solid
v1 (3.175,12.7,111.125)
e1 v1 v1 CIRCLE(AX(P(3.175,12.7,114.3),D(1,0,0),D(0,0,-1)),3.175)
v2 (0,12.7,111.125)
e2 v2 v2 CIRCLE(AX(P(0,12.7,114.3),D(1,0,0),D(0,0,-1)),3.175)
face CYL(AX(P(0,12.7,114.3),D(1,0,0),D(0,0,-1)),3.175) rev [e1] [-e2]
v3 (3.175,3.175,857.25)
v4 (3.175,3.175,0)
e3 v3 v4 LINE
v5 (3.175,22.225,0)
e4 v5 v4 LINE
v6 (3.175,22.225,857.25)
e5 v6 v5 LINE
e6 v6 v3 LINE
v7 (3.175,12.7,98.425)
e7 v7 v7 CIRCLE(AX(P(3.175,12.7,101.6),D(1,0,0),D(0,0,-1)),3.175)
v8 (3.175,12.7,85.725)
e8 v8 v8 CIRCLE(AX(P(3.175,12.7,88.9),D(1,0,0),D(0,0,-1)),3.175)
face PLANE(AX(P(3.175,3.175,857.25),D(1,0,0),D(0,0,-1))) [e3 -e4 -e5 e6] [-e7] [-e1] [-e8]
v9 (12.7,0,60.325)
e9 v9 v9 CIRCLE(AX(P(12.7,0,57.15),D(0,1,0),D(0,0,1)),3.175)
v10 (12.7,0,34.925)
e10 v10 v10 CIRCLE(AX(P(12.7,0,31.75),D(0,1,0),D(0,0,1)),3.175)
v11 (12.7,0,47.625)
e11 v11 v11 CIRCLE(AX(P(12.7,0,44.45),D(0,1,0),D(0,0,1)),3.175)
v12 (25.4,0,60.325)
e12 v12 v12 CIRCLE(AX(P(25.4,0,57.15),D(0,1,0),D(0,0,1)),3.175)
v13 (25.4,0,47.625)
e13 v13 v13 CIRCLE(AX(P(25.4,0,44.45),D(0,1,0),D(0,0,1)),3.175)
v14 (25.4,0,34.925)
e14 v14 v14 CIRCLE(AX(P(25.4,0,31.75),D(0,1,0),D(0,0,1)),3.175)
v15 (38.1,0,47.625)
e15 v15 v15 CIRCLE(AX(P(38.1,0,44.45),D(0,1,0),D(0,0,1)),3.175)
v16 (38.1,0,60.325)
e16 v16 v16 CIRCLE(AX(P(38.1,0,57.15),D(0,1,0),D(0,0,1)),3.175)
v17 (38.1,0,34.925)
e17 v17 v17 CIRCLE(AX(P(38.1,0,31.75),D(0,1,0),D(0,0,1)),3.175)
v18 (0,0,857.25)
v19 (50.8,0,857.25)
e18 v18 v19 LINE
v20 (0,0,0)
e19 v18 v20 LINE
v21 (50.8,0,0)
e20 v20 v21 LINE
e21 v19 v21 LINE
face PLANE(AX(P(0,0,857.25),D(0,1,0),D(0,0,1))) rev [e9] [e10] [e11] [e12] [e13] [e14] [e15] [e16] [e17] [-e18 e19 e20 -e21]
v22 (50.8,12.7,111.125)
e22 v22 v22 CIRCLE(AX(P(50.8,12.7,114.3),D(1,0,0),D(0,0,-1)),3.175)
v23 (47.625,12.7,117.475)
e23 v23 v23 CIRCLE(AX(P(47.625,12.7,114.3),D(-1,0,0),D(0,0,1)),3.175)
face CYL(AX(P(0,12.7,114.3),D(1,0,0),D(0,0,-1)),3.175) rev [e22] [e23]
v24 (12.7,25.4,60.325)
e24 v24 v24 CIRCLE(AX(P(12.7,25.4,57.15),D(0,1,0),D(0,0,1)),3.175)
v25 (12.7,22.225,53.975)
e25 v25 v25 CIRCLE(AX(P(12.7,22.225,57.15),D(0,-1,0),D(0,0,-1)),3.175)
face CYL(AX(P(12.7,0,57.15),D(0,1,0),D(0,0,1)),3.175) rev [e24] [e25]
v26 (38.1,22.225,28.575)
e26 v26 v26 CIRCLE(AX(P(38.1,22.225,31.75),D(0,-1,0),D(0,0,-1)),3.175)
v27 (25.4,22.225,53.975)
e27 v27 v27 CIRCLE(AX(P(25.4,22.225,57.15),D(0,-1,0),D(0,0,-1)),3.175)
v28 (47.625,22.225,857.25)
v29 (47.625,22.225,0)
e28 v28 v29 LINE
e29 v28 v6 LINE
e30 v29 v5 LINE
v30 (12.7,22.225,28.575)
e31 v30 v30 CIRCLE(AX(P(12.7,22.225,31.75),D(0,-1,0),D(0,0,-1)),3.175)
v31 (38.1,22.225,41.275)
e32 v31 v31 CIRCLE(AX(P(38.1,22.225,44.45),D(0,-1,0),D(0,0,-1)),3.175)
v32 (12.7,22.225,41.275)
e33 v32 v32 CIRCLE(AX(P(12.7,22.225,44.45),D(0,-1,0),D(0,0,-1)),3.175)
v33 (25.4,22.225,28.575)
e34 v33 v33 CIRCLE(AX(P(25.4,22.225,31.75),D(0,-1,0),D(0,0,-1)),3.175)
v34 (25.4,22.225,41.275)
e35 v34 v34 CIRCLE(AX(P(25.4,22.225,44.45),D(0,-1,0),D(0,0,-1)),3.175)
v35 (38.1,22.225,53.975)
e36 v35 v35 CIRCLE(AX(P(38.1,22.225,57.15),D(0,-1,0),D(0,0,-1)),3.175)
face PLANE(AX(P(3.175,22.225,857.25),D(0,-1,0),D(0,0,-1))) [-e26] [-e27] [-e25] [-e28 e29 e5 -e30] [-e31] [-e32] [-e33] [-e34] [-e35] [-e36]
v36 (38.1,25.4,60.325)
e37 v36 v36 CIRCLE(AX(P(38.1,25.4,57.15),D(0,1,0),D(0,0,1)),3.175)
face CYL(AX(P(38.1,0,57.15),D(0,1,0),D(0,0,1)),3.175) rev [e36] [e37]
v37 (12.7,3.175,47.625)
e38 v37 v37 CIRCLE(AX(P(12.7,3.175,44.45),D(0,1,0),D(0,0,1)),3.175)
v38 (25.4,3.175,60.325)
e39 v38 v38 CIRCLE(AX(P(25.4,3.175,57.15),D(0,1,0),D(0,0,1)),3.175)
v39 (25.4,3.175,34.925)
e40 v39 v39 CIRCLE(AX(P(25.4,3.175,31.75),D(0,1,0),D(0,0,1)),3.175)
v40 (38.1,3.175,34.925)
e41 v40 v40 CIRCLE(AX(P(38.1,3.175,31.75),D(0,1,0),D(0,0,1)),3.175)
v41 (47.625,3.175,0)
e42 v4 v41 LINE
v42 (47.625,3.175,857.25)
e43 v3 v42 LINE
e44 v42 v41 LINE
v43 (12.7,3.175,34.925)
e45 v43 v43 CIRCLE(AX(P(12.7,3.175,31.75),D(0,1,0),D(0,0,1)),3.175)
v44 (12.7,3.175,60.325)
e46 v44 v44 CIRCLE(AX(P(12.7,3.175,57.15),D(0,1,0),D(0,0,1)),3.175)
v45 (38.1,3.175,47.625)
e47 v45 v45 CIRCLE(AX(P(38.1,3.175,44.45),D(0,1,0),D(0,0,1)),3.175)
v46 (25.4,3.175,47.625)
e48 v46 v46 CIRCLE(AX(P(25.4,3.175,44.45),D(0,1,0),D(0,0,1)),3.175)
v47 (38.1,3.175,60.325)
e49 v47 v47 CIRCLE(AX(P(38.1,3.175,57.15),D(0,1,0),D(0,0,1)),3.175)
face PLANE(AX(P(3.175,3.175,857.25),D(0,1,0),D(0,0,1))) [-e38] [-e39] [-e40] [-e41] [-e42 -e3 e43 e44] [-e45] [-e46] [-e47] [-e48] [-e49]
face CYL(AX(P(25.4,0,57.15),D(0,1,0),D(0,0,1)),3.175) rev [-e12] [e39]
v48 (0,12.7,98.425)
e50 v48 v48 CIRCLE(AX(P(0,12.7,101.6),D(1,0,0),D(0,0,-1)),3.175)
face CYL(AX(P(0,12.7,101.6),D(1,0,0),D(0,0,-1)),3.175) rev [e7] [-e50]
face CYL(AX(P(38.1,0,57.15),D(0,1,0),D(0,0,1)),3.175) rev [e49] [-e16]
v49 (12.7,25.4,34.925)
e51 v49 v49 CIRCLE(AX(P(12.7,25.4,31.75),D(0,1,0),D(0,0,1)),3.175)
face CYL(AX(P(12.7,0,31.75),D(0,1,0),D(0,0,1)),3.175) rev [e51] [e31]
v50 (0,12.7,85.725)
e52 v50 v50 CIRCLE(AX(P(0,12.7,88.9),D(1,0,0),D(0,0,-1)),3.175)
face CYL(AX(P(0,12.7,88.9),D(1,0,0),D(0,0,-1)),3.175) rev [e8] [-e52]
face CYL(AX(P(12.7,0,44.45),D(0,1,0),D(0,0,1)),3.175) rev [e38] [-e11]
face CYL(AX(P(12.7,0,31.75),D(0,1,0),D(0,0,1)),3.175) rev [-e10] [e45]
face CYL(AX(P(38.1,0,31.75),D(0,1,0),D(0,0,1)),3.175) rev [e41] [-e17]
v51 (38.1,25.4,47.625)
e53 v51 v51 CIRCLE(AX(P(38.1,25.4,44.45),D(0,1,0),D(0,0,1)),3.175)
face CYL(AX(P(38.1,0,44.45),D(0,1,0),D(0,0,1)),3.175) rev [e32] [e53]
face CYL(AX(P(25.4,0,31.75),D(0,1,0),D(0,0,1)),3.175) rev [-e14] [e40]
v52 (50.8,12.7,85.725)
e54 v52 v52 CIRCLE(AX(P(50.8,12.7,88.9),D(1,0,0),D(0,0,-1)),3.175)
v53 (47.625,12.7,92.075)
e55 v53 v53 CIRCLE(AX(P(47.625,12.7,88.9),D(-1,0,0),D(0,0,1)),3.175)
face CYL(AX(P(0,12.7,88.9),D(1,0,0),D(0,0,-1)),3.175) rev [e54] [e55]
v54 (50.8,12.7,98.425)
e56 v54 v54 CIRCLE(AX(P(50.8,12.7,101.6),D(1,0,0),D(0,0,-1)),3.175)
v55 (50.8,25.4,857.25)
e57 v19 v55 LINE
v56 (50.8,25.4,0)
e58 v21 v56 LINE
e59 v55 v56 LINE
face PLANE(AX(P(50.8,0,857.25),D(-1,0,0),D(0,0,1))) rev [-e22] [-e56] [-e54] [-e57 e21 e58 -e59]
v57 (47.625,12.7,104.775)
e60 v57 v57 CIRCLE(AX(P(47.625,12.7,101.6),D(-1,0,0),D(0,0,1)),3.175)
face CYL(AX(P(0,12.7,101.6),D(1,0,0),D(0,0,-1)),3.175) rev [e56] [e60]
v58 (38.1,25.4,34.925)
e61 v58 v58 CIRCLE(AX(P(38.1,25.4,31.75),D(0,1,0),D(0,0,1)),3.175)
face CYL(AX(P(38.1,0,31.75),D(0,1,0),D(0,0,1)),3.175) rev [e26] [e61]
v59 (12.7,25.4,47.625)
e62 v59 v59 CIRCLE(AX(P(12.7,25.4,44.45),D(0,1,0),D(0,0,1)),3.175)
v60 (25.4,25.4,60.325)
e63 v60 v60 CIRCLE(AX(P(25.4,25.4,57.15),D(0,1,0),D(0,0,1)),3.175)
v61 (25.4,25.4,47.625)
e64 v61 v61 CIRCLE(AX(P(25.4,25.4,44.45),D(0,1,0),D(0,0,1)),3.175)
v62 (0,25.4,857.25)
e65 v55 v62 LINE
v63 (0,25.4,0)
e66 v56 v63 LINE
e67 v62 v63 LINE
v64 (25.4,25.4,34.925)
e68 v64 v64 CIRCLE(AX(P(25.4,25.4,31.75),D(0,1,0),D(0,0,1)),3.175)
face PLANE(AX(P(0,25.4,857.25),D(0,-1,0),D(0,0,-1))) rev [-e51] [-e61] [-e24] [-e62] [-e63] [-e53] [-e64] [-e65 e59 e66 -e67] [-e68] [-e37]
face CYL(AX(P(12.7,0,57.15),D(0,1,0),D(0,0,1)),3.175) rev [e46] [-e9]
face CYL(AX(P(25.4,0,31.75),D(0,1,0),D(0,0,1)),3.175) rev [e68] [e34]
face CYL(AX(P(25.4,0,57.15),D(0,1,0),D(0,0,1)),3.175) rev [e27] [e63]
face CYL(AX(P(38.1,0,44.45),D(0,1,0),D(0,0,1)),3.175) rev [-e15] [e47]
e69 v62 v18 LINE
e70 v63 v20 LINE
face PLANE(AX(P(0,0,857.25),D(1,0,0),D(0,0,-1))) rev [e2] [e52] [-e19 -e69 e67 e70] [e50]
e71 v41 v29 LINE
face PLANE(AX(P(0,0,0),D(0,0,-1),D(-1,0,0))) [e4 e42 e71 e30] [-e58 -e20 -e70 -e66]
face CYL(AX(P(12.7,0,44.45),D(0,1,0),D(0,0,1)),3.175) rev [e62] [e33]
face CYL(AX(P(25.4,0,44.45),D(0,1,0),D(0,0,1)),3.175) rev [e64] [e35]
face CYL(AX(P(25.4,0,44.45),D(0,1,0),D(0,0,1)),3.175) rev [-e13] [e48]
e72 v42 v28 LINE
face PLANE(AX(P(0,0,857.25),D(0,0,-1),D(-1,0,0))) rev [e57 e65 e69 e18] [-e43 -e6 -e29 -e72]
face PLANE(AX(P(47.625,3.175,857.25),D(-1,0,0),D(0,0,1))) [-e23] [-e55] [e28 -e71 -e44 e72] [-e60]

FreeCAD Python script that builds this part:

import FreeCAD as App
import Part
import Sketcher

V = App.Vector
Q = App.Units.Quantity


def add_polygon(sketch, points):
    """Adds a closed chain of lines whose ends are joined by coincident constraints."""
    first, n = sketch.GeometryCount, len(points)
    for a, b in zip(points, points[1:] + points[:1]):
        sketch.addGeometry(Part.LineSegment(App.Vector(*a, 0), App.Vector(*b, 0)), False)
    for i in range(n):
        sketch.addConstraint(Sketcher.Constraint("Coincident", first + i, 2, first + (i + 1) % n, 1))

doc = App.newDocument("Part")
body = doc.addObject("PartDesign::Body", "Body")

# Sketch on XY plane
sketch1 = body.newObject("Sketcher::SketchObject", "Sketch")
sketch1.AttachmentSupport = (doc.getObject("XY_Plane"), [""])
sketch1.MapMode = "FlatFace"
add_polygon(sketch1, [(0, 25), (0, 0), (51, 0), (51, 25)])  # lines 0-3
add_polygon(sketch1, [(48, 3), (3, 3), (3, 22), (48, 22)])  # lines 4-7
sketch1.addConstraint([
    Sketcher.Constraint("Vertical", 0),
    Sketcher.Constraint("Horizontal", 1),
    Sketcher.Constraint("Vertical", 2),
    Sketcher.Constraint("Horizontal", 3),
    Sketcher.Constraint("Horizontal", 4),
    Sketcher.Constraint("Vertical", 5),
    Sketcher.Constraint("Horizontal", 6),
    Sketcher.Constraint("Vertical", 7),
    Sketcher.Constraint("Coincident", 0, 2, -1, 1),
    Sketcher.Constraint("DistanceX", 1, 1, 1, 2, Q("2 in")),
    Sketcher.Constraint("DistanceY", 0, 2, 0, 1, Q("1 in")),
    Sketcher.Constraint("DistanceX", 4, 2, 4, 1, Q("1.75 in")),
    Sketcher.Constraint("DistanceY", 5, 1, 5, 2, Q("0.75 in")),
    Sketcher.Constraint("DistanceX", -1, 1, 4, 2, Q("0.125 in")),
    Sketcher.Constraint("DistanceY", -1, 1, 4, 2, Q("0.125 in")),
])
pad1 = body.newObject("PartDesign::Pad", "Pad")
pad1.Profile = sketch1
pad1.Length = Q("33.75 in")

# Sketch on YZ plane
sketch2 = body.newObject("Sketcher::SketchObject", "Sketch001")
sketch2.AttachmentSupport = (doc.getObject("YZ_Plane"), [""])
sketch2.MapMode = "FlatFace"
sketch2.AttachmentOffset = App.Placement(V(0, 0, 2 * 25.4), App.Rotation())
sketch2.addGeometry([
    Part.Circle(V(12.7, 88.9, 0), V(0, 0, 1), 3.2),
    Part.Circle(V(12.7, 101.6, 0), V(0, 0, 1), 3.2),
    Part.Circle(V(12.7, 114.3, 0), V(0, 0, 1), 3.2),
], False)
sketch2.addConstraint([
    Sketcher.Constraint("Equal", 0, 1),
    Sketcher.Constraint("Equal", 1, 2),
    Sketcher.Constraint("Vertical", 0, 3, 1, 3),
    Sketcher.Constraint("Vertical", 1, 3, 2, 3),
    Sketcher.Constraint("Diameter", 0, Q("0.25 in")),
    Sketcher.Constraint("DistanceY", -1, 1, 1, 3, Q("4 in")),
    Sketcher.Constraint("DistanceY", 0, 3, 2, 3, Q("1 in")),
    Sketcher.Constraint("DistanceX", -1, 1, 0, 3, Q("0.5 in")),
    Sketcher.Constraint("DistanceY", -1, 1, 0, 3, Q("3.5 in")),
])
pocket1 = body.newObject("PartDesign::Pocket", "Pocket")
pocket1.Profile = sketch2
pocket1.Type = "ThroughAll"
pocket1.Midplane = True

# Sketch on XZ plane
sketch3 = body.newObject("Sketcher::SketchObject", "Sketch002")
sketch3.AttachmentSupport = (doc.getObject("XZ_Plane"), [""])
sketch3.MapMode = "FlatFace"
sketch3.AttachmentOffset = App.Placement(V(0, 0, -1 * 25.4), App.Rotation())
sketch3.addGeometry([
    Part.Circle(V(12.7, 31.8, 0), V(0, 0, 1), 3.2),  # 0
    Part.Circle(V(25.4, 31.8, 0), V(0, 0, 1), 3.2),  # 1
    Part.Circle(V(38.1, 31.8, 0), V(0, 0, 1), 3.2),  # 2
    Part.Circle(V(25.4, 44.5, 0), V(0, 0, 1), 3.2),  # 3
    Part.Circle(V(38.1, 44.5, 0), V(0, 0, 1), 3.2),  # 4
    Part.Circle(V(25.4, 57.1, 0), V(0, 0, 1), 3.2),  # 5
    Part.Circle(V(38.1, 57.1, 0), V(0, 0, 1), 3.2),  # 6
    Part.Circle(V(12.7, 44.5, 0), V(0, 0, 1), 3.2),  # 7
    Part.Circle(V(12.7, 57.1, 0), V(0, 0, 1), 3.2),  # 8
], False)
sketch3.addConstraint([
    Sketcher.Constraint("Equal", 0, 1),
    Sketcher.Constraint("Equal", 1, 2),
    Sketcher.Constraint("Equal", 2, 3),
    Sketcher.Constraint("Equal", 3, 4),
    Sketcher.Constraint("Equal", 4, 5),
    Sketcher.Constraint("Equal", 5, 6),
    Sketcher.Constraint("Equal", 6, 7),
    Sketcher.Constraint("Equal", 7, 8),
    Sketcher.Constraint("Horizontal", 0, 3, 1, 3),
    Sketcher.Constraint("Horizontal", 1, 3, 2, 3),
    Sketcher.Constraint("Horizontal", 3, 3, 4, 3),
    Sketcher.Constraint("Horizontal", 5, 3, 6, 3),
    Sketcher.Constraint("Horizontal", 4, 3, 7, 3),
    Sketcher.Constraint("Horizontal", 6, 3, 8, 3),
    Sketcher.Constraint("Vertical", 1, 3, 3, 3),
    Sketcher.Constraint("Vertical", 2, 3, 4, 3),
    Sketcher.Constraint("Vertical", 3, 3, 5, 3),
    Sketcher.Constraint("Vertical", 4, 3, 6, 3),
    Sketcher.Constraint("Vertical", 0, 3, 7, 3),
    Sketcher.Constraint("Vertical", 7, 3, 8, 3),
    Sketcher.Constraint("Diameter", 0, Q("0.25 in")),
    Sketcher.Constraint("DistanceX", -1, 1, 1, 3, Q("1 in")),
    Sketcher.Constraint("DistanceX", 0, 3, 2, 3, Q("1 in")),
    Sketcher.Constraint("DistanceY", 1, 3, 5, 3, Q("1 in")),
    Sketcher.Constraint("DistanceX", -1, 1, 0, 3, Q("0.5 in")),
    Sketcher.Constraint("DistanceY", 1, 3, 3, 3, Q("0.5 in")),
    Sketcher.Constraint("DistanceY", -1, 1, 0, 3, Q("1.25 in")),
])
pocket2 = body.newObject("PartDesign::Pocket", "Pocket001")
pocket2.Profile = sketch3
pocket2.Type = "ThroughAll"
pocket2.Midplane = True

doc.recompute()
